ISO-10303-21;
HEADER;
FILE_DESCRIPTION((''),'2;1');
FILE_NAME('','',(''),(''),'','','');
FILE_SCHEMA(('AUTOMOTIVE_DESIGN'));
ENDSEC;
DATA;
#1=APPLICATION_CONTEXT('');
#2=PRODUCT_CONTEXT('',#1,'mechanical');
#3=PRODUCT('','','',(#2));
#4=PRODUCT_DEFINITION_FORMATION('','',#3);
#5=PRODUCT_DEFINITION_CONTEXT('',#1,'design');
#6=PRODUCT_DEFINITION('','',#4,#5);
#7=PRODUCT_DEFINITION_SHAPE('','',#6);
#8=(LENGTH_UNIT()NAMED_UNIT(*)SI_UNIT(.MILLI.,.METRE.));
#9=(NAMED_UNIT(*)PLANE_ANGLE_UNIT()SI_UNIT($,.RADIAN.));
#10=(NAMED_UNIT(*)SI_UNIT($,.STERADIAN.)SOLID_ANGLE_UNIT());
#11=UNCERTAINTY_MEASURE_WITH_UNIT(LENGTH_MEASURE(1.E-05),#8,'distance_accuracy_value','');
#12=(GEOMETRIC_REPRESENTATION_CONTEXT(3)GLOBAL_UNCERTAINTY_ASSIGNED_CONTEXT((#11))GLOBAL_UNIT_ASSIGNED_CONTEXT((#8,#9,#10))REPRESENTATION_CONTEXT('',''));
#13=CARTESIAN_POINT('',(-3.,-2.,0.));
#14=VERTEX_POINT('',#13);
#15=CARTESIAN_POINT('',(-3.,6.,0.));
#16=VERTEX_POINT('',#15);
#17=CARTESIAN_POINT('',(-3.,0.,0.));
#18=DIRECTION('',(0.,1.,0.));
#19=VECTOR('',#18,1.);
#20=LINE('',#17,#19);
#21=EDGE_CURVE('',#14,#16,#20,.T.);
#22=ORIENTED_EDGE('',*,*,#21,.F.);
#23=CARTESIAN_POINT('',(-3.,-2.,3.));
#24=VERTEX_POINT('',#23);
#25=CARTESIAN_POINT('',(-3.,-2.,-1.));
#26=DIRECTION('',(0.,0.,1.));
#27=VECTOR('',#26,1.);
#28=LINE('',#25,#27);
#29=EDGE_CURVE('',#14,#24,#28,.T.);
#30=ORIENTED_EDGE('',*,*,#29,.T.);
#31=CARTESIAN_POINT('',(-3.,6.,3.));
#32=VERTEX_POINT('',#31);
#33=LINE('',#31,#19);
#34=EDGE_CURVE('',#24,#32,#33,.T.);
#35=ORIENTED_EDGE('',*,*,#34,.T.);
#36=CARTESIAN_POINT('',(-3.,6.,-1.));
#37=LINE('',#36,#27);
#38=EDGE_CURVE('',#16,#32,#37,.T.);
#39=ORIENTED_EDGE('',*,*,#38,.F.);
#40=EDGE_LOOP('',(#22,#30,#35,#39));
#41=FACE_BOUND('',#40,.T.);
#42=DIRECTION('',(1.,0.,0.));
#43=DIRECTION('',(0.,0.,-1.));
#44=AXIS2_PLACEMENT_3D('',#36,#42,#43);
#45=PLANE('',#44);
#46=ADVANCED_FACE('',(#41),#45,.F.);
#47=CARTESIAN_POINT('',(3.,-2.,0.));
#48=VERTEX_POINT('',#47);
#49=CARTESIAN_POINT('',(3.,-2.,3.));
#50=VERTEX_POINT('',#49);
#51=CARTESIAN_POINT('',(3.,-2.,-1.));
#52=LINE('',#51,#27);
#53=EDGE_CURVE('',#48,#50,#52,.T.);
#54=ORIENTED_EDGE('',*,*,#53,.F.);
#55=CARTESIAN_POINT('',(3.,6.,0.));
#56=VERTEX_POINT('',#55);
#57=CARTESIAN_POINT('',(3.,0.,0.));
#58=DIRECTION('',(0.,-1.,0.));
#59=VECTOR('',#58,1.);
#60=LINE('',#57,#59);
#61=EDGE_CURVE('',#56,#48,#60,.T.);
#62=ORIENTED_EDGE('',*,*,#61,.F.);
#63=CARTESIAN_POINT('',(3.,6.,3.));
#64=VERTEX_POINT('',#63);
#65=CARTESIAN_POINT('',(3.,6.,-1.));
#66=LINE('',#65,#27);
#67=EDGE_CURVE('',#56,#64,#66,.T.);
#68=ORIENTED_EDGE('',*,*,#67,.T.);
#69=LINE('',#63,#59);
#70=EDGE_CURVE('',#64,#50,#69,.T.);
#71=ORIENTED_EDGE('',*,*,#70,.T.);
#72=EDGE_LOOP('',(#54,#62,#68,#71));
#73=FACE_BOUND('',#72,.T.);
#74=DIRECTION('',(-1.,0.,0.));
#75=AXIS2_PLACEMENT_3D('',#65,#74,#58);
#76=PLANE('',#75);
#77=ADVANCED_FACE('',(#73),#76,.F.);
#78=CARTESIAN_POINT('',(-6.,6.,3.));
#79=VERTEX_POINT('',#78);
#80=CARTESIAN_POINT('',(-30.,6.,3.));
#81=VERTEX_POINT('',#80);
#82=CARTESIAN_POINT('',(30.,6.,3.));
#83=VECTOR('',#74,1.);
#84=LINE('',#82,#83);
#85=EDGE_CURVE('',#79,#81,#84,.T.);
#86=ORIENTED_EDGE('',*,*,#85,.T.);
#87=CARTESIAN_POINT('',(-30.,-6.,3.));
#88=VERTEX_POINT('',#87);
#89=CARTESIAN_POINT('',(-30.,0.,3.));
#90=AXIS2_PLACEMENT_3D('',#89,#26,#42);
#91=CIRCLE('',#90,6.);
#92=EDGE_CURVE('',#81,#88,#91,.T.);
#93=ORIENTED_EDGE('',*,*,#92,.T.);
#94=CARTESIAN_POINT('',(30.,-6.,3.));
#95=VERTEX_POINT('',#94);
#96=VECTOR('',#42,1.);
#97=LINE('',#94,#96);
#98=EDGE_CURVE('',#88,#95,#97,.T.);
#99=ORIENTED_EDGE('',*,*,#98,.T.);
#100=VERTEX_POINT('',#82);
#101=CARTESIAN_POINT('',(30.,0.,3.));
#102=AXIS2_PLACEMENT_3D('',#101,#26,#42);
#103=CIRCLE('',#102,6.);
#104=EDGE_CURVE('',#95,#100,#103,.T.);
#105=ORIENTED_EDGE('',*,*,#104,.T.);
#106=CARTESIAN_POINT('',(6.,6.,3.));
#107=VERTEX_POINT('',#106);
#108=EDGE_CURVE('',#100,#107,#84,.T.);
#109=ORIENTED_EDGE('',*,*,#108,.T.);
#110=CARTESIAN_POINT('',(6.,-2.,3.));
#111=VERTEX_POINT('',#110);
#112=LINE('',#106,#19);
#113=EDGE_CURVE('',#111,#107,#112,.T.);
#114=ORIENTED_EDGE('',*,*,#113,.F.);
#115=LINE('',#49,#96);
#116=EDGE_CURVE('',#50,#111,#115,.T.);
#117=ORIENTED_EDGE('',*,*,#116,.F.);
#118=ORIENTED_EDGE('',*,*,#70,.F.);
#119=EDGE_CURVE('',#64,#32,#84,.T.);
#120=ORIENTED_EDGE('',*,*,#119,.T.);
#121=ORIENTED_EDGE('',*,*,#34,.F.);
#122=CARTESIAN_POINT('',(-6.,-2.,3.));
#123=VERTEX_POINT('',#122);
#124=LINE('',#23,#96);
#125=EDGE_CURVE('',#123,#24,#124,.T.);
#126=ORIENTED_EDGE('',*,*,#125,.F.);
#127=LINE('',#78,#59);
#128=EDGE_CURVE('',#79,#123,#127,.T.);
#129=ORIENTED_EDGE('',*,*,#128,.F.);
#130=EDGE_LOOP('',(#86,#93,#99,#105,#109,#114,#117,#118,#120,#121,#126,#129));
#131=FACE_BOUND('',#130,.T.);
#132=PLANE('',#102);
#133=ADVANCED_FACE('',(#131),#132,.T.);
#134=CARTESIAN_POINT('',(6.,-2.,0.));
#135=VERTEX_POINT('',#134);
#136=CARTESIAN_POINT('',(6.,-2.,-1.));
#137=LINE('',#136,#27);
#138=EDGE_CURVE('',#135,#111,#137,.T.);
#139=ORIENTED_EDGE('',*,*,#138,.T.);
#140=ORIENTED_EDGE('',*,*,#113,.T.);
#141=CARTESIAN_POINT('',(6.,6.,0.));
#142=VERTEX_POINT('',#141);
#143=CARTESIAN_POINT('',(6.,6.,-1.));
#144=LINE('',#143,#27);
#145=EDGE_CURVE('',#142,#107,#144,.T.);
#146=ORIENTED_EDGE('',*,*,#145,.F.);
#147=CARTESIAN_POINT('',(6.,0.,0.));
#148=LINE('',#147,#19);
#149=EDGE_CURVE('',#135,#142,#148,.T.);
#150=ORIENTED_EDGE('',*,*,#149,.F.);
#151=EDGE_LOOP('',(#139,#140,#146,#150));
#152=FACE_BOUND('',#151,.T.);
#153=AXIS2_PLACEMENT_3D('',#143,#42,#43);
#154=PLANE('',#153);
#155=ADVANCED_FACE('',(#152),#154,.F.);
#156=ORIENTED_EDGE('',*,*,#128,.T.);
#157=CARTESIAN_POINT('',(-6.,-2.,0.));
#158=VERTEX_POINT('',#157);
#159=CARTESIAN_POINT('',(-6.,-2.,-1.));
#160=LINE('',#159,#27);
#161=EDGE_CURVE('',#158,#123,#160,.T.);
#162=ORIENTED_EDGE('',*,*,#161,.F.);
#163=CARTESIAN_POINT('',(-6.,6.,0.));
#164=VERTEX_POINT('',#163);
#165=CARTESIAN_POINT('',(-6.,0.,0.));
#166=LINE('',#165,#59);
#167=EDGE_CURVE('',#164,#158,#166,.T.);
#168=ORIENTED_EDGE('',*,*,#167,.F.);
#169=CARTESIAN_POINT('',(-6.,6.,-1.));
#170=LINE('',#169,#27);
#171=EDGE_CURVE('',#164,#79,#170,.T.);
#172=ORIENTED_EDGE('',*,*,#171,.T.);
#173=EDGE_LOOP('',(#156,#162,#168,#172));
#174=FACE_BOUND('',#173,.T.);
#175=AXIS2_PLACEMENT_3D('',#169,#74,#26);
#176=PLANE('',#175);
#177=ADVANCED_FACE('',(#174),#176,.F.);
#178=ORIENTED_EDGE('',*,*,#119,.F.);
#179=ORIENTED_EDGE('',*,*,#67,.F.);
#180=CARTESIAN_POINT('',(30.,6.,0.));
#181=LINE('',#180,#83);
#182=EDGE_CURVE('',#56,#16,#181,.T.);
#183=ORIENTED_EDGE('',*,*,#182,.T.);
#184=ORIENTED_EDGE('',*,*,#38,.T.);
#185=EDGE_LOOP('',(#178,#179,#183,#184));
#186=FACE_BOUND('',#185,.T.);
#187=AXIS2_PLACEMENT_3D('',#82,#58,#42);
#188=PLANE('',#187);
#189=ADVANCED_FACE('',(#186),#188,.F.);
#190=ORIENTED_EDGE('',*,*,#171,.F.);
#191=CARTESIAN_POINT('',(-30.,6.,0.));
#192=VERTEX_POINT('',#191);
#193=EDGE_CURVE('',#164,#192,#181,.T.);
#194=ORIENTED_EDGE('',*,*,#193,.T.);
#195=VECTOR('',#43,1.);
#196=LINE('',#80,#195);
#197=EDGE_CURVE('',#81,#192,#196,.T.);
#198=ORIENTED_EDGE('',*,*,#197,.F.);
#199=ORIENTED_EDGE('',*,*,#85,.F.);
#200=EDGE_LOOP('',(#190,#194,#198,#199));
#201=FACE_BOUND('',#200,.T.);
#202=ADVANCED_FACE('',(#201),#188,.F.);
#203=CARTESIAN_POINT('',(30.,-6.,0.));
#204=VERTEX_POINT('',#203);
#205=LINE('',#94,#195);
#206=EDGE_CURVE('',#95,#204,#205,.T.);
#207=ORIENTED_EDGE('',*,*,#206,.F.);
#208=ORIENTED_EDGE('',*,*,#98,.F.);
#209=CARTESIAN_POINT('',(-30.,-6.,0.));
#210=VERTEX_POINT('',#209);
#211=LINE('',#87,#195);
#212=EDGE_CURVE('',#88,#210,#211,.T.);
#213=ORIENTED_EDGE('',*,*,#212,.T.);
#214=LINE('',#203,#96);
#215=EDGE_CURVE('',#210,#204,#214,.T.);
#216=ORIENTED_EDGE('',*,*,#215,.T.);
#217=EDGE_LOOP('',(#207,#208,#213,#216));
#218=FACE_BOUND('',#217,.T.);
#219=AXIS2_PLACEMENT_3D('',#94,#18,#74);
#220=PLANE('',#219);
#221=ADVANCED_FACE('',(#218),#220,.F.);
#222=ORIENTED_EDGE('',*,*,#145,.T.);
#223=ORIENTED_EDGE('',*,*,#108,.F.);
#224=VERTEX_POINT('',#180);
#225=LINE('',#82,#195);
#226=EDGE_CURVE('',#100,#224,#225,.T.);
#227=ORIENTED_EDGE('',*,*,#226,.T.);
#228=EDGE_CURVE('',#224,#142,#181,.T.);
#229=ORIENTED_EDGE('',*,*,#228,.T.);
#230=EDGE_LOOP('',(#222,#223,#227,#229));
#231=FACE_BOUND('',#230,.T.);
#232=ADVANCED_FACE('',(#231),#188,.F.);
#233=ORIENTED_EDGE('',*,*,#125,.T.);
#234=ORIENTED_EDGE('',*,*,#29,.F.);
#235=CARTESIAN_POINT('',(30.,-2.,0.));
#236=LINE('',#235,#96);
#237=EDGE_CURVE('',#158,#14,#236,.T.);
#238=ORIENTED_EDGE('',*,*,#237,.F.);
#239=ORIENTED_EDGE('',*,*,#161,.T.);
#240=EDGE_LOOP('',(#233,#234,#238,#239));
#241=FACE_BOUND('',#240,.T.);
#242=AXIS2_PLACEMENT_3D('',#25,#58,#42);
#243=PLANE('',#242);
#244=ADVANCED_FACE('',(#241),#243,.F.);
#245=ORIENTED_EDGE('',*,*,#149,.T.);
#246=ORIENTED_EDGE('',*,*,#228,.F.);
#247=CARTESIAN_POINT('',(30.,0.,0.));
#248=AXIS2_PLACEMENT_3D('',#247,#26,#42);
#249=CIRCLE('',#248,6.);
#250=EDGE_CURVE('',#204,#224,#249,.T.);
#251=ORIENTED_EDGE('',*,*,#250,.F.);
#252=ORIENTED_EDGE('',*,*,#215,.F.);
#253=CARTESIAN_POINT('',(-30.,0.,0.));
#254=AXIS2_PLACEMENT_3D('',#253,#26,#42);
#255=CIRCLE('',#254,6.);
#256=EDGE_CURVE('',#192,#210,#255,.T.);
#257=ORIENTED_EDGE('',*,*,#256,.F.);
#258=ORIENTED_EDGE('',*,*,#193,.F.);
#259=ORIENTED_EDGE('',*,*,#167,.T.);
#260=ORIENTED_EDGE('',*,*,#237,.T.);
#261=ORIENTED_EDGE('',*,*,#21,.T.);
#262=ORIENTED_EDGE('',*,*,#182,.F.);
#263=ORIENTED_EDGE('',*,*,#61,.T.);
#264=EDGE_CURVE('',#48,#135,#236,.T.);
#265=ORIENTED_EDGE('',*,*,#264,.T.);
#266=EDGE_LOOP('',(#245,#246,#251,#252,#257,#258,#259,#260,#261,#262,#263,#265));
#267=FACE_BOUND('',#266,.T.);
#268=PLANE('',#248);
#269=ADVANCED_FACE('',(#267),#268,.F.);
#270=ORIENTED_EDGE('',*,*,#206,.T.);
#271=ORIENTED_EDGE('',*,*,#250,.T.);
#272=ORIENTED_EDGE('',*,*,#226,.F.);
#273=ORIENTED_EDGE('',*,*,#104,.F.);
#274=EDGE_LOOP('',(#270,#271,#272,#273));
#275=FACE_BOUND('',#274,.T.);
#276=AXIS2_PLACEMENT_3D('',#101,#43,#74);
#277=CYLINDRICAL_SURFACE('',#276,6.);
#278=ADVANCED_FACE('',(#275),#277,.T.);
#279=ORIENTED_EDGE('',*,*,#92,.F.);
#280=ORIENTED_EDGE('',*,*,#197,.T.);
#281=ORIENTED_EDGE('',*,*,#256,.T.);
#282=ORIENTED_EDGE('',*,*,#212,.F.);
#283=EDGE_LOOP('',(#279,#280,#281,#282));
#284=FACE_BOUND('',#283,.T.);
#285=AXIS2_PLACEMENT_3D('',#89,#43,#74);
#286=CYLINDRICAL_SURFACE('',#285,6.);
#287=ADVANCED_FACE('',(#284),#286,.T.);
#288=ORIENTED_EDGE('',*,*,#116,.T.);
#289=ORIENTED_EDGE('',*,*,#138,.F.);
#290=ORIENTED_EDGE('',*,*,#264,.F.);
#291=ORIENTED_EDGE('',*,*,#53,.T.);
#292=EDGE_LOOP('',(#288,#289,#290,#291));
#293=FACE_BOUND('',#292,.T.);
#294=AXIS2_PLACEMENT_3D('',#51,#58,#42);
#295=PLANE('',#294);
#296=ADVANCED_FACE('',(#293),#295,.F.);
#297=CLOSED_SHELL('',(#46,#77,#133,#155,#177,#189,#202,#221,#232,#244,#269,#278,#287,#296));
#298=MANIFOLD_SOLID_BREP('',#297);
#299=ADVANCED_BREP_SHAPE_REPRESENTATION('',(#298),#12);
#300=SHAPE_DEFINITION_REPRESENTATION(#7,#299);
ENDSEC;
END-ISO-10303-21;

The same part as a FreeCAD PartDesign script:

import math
import FreeCAD as App
import Part
import Sketcher
from FreeCAD import Vector


def add_polygon(sketch, points):
    """Adds a closed chain of lines whose ends are joined by coincident constraints."""
    first, n = sketch.GeometryCount, len(points)
    for a, b in zip(points, points[1:] + points[:1]):
        sketch.addGeometry(Part.LineSegment(App.Vector(*a, 0), App.Vector(*b, 0)), False)
    for i in range(n):
        sketch.addConstraint(Sketcher.Constraint("Coincident", first + i, 2, first + (i + 1) % n, 1))

doc = App.newDocument("Part")
body = doc.addObject("PartDesign::Body", "Body")

sketch1 = body.newObject("Sketcher::SketchObject", "Sketch")
sketch1.AttachmentSupport = (doc.getObject("XY_Plane"), [""])
sketch1.MapMode = "FlatFace"
sketch1.addGeometry([
    Part.LineSegment(Vector(-30, -6, 0), Vector(30, -6, 0)),
    Part.ArcOfCircle(Part.Circle(Vector(30, 0, 0), Vector(0, 0, 1), 6), math.radians(-90), math.radians(90)),
    Part.LineSegment(Vector(30, 6, 0), Vector(-30, 6, 0)),
    Part.ArcOfCircle(Part.Circle(Vector(-30, 0, 0), Vector(0, 0, 1), 6), math.radians(90), math.radians(270)),
], False)
sketch1.addConstraint([
    Sketcher.Constraint("Tangent", 0, 2, 1, 1),
    Sketcher.Constraint("Tangent", 1, 2, 2, 1),
    Sketcher.Constraint("Tangent", 2, 2, 3, 1),
    Sketcher.Constraint("Tangent", 3, 2, 0, 1),
    Sketcher.Constraint("Horizontal", 0),
    Sketcher.Constraint("Horizontal", 2),
    Sketcher.Constraint("Symmetric", 1, 3, 3, 3, -1, 1),
    Sketcher.Constraint("Radius", 1, 6.0),
    Sketcher.Constraint("DistanceX", 0, 1, 0, 2, 60.0),
])
pad1 = body.newObject("PartDesign::Pad", "Pad")
pad1.Profile = sketch1
pad1.Length = 3

sketch2 = body.newObject("Sketcher::SketchObject", "Sketch001")
sketch2.AttachmentSupport = (doc.getObject("XY_Plane"), [""])
sketch2.MapMode = "FlatFace"
sketch2.AttachmentOffset = App.Placement(Vector(0, 0, 3), App.Rotation())
add_polygon(sketch2, [(-6, 6), (-6, -2), (-3, -2), (-3, 6)])
add_polygon(sketch2, [(3, 6), (3, -2), (6, -2), (6, 6)])
sketch2.addConstraint([
    Sketcher.Constraint("Vertical", 0),
    Sketcher.Constraint("Horizontal", 1),
    Sketcher.Constraint("Vertical", 2),
    Sketcher.Constraint("Horizontal", 3),
    Sketcher.Constraint("Vertical", 4),
    Sketcher.Constraint("Horizontal", 5),
    Sketcher.Constraint("Vertical", 6),
    Sketcher.Constraint("Horizontal", 7),
    Sketcher.Constraint("Symmetric", 1, 2, 4, 2, -2),
    Sketcher.Constraint("Symmetric", 3, 2, 6, 2, -2),
    Sketcher.Constraint("DistanceX", 1, 1, 1, 2, 3.0),
    Sketcher.Constraint("DistanceY", 0, 2, 0, 1, 8.0),
    Sketcher.Constraint("DistanceX", 0, 2, -1, 1, 6.0),
    Sketcher.Constraint("DistanceY", 0, 2, -1, 1, 2.0),
])
pocket1 = body.newObject("PartDesign::Pocket", "Pocket")
pocket1.Profile = sketch2
pocket1.Length = 4

doc.recompute()
